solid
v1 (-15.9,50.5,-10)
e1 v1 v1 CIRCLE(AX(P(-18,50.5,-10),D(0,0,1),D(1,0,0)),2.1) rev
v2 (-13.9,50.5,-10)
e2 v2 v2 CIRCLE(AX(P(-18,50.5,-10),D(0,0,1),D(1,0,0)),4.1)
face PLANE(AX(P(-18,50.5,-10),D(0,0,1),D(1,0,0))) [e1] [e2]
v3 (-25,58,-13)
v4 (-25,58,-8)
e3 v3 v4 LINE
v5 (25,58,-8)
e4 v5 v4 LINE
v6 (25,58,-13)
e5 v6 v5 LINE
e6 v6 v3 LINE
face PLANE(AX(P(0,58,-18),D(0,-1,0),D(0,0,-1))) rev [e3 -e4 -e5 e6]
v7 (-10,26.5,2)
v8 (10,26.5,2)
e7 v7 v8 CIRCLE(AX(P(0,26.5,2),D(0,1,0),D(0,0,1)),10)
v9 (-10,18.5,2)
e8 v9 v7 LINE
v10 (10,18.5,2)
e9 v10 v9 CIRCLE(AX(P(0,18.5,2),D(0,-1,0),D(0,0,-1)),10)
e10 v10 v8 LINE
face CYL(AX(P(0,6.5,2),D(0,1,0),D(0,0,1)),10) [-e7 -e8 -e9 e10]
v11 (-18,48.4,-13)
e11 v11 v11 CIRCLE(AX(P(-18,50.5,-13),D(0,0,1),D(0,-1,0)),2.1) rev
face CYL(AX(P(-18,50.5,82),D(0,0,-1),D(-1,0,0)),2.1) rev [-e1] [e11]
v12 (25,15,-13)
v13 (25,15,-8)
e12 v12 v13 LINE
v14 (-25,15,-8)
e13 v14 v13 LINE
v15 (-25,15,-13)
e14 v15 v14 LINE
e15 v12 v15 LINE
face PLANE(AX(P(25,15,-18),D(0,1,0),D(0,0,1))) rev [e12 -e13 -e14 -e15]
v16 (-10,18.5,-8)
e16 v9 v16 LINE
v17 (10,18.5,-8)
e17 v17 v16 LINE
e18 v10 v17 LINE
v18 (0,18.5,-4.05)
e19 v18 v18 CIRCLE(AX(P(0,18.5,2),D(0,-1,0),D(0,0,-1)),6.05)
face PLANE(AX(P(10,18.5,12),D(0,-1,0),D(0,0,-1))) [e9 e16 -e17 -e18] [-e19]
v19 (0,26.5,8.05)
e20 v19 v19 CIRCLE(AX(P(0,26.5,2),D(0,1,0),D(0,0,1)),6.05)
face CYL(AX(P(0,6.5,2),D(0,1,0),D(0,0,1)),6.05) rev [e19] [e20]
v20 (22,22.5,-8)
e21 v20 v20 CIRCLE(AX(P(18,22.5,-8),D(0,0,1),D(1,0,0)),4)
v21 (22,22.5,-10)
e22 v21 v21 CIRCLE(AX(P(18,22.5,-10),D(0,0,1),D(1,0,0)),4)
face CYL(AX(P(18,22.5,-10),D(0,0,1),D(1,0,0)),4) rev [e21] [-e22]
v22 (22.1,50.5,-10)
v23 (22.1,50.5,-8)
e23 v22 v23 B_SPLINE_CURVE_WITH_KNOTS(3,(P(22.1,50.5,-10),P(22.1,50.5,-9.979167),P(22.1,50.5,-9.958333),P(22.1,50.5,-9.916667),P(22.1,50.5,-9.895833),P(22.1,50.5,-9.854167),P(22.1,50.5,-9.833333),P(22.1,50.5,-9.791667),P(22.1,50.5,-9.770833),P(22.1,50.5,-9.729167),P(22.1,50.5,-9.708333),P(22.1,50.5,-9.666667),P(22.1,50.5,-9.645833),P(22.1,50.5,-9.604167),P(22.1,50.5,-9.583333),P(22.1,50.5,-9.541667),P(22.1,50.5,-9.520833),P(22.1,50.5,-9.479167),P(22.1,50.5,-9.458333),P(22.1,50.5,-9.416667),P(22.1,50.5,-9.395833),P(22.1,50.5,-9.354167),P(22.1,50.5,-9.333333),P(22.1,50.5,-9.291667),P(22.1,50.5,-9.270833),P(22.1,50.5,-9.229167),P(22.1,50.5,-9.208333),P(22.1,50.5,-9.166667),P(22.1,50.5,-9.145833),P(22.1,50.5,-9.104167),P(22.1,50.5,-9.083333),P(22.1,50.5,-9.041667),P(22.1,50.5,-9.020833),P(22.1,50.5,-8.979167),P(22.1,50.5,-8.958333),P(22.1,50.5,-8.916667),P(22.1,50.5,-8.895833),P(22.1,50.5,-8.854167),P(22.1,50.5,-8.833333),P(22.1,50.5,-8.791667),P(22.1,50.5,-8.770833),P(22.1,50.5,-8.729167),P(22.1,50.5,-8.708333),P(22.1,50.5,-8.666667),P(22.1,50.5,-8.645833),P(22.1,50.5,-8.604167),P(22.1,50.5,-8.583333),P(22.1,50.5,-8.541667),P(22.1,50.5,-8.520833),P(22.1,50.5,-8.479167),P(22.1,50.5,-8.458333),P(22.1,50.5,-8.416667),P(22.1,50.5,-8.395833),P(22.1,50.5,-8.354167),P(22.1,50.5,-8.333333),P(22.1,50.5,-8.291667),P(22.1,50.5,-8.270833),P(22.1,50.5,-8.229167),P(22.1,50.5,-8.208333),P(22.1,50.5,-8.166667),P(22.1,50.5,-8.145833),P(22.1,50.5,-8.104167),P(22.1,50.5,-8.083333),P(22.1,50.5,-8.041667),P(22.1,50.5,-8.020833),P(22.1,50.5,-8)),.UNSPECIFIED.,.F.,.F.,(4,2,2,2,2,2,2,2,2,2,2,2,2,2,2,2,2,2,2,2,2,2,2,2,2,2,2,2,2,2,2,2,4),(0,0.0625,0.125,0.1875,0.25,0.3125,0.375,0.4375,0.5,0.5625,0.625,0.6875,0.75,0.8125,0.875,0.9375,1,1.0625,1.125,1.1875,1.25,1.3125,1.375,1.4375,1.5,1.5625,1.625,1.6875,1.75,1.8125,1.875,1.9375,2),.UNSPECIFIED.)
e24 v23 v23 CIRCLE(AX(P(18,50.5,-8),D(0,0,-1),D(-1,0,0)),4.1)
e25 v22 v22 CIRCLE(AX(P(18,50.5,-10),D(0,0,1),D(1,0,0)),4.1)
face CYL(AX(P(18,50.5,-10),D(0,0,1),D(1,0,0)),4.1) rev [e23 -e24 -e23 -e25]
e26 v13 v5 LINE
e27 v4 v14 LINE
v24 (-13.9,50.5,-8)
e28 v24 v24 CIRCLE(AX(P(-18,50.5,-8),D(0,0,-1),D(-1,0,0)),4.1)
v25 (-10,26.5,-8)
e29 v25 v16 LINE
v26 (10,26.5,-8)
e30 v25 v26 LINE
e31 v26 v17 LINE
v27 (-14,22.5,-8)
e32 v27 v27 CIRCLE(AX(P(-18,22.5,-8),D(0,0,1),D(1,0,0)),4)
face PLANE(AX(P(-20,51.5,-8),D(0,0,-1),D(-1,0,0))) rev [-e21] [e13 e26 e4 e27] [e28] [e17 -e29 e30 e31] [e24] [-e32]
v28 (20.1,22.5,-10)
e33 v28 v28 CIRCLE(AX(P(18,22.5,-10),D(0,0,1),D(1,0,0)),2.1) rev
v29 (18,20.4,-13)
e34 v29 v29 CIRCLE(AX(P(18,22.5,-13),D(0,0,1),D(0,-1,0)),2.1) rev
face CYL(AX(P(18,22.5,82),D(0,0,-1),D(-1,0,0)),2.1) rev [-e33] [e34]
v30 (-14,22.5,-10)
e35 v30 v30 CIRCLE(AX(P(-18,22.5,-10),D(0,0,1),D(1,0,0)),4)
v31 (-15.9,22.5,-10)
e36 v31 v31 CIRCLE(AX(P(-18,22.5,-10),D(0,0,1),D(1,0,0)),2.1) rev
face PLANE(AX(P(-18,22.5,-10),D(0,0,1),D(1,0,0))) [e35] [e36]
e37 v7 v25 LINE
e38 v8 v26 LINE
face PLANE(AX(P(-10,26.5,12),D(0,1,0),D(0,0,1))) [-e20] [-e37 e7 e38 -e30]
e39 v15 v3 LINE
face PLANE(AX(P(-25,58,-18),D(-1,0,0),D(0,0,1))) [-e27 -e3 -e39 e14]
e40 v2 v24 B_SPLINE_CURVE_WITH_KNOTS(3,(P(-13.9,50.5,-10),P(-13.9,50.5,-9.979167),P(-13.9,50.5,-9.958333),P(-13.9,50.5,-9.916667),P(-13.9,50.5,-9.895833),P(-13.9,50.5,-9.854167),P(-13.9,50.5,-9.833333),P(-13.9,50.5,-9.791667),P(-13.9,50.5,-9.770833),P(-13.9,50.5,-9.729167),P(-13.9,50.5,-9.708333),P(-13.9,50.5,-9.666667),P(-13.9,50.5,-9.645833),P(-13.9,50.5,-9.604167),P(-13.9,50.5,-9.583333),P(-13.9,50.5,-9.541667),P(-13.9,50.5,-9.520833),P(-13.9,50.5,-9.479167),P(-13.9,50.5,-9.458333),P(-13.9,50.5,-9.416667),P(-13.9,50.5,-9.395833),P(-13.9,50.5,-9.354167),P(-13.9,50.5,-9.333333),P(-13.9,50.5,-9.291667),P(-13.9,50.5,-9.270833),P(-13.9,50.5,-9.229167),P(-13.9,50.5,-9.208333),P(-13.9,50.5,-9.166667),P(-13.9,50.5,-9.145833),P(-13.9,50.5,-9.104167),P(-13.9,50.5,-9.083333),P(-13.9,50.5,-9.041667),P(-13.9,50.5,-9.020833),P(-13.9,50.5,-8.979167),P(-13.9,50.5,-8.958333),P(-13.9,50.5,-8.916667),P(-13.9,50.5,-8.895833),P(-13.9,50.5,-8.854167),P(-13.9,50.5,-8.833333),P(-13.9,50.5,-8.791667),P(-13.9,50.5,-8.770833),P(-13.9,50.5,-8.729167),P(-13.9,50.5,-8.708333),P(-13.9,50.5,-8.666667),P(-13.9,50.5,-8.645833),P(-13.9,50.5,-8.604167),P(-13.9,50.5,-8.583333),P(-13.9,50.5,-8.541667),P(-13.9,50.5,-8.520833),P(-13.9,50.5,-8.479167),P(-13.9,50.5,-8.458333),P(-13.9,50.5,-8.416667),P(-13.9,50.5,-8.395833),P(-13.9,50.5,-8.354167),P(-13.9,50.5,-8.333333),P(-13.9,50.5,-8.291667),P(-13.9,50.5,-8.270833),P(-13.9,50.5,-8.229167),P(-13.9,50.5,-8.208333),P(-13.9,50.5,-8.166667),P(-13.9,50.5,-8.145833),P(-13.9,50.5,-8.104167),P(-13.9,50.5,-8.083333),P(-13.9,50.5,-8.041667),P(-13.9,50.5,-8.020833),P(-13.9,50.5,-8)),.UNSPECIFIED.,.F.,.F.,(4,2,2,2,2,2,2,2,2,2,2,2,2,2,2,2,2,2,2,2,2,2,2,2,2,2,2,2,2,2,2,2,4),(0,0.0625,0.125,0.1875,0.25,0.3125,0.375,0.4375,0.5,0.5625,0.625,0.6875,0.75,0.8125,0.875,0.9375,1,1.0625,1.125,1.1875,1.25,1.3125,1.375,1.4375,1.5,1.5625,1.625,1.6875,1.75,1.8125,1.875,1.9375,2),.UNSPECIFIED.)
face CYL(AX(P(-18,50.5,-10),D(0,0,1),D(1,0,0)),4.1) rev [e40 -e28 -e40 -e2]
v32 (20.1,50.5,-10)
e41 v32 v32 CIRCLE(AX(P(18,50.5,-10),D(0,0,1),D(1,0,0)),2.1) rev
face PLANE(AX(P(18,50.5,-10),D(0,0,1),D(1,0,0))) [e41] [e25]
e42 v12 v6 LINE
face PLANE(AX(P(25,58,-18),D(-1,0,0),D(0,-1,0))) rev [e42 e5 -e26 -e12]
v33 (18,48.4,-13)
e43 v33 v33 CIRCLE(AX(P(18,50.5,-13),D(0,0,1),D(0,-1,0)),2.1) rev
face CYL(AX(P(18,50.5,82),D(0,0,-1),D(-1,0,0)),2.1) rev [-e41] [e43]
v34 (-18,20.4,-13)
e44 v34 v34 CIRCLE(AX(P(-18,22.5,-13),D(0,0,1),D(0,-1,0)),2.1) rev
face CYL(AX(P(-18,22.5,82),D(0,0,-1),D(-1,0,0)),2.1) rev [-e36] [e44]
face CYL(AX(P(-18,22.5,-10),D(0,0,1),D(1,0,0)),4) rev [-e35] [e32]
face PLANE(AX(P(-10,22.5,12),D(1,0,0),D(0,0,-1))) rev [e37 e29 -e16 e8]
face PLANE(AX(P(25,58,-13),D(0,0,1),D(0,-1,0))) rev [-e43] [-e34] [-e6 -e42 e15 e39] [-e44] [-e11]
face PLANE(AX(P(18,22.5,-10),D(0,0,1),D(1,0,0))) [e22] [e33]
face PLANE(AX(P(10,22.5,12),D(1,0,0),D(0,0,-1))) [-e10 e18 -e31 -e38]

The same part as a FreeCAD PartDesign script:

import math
import FreeCAD as App
import Part
import Sketcher

V = App.Vector


def add_polygon(sketch, points):
    """Adds a closed chain of lines whose ends are joined by coincident constraints."""
    first, n = sketch.GeometryCount, len(points)
    for a, b in zip(points, points[1:] + points[:1]):
        sketch.addGeometry(Part.LineSegment(App.Vector(*a, 0), App.Vector(*b, 0)), False)
    for i in range(n):
        sketch.addConstraint(Sketcher.Constraint("Coincident", first + i, 2, first + (i + 1) % n, 1))

doc = App.newDocument("Part")
body = doc.addObject("PartDesign::Body", "Body")

sketch1 = doc.addObject("Sketcher::SketchObject", "Sketch")
body.addObject(sketch1)
sketch1.AttachmentSupport = (doc.XY_Plane, [""])
sketch1.MapMode = "FlatFace"
add_polygon(sketch1, [(25, 21.5), (-25, 21.5), (-25, -21.5), (25, -21.5)])
sketch1.addGeometry(Part.Circle(V(18, -14, 0), V(0, 0, 1), 2), False)
sketch1.addGeometry(Part.Circle(V(-18, -14, 0), V(0, 0, 1), 2), False)
sketch1.addGeometry(Part.Circle(V(18, 14, 0), V(0, 0, 1), 2), False)
sketch1.addGeometry(Part.Circle(V(-18, 14, 0), V(0, 0, 1), 2), False)
sketch1.addConstraint([
    Sketcher.Constraint("Horizontal", 0),
    Sketcher.Constraint("Vertical", 1),
    Sketcher.Constraint("Horizontal", 2),
    Sketcher.Constraint("Vertical", 3),
    Sketcher.Constraint("Equal", 4, 5),
    Sketcher.Constraint("Equal", 5, 6),
    Sketcher.Constraint("Equal", 6, 7),
    Sketcher.Constraint("Symmetric", 5, 3, 6, 3, -1, 1),
    Sketcher.Constraint("Symmetric", 4, 3, 7, 3, -1, 1),
    Sketcher.Constraint("Symmetric", 0, 2, 2, 2, -1, 1),
    Sketcher.Constraint("Symmetric", 4, 3, 5, 3, -2),
    Sketcher.Constraint("Diameter", 4, 4.0),
    Sketcher.Constraint("DistanceX", 0, 2, 0, 1, 50.0),
    Sketcher.Constraint("DistanceY", 1, 2, 1, 1, 43.0),
    Sketcher.Constraint("DistanceX", -1, 1, 4, 3, 18.0),
    Sketcher.Constraint("DistanceY", 4, 3, -1, 1, 14.0),
])
pad1 = doc.addObject("PartDesign::Pad", "Pad")
body.addObject(pad1)
pad1.Profile = sketch1
pad1.Length = 5

sketch2 = doc.addObject("Sketcher::SketchObject", "Sketch001")
body.addObject(sketch2)
sketch2.AttachmentSupport = (doc.XY_Plane, [""])
sketch2.MapMode = "FlatFace"
sketch2.AttachmentOffset = App.Placement(V(0, 0, 5), App.Rotation())
add_polygon(sketch2, [(20, 26), (-20, 26), (-20, 22), (20, 22)])
sketch2.addConstraint([
    Sketcher.Constraint("Horizontal", 0),
    Sketcher.Constraint("Vertical", 1),
    Sketcher.Constraint("Horizontal", 2),
    Sketcher.Constraint("Vertical", 3),
    Sketcher.Constraint("DistanceX", 0, 2, 0, 1, 40.0),
    Sketcher.Constraint("DistanceY", 1, 2, 1, 1, 5.0),
    Sketcher.Constraint("DistanceX", 0, 2, -1, 1, 20.0),
    Sketcher.Constraint("DistanceY", -1, 1, 0, 2, 26.5),
])
pad2 = doc.addObject("PartDesign::Pad", "Pad001")
body.addObject(pad2)
pad2.Profile = sketch2
pad2.Length = 18
pad2.Reversed = True

sketch3 = doc.addObject("Sketcher::SketchObject", "Sketch002")
body.addObject(sketch3)
sketch3.AttachmentSupport = (doc.XZ_Plane, [""])
sketch3.MapMode = "FlatFace"
sketch3.AttachmentOffset = App.Placement(V(0, 0, -26.5), App.Rotation())
add_polygon(sketch3, [(-20, -13), (-20, -8), (20, -8), (20, -13)])
sketch3.addConstraint([
    Sketcher.Constraint("Vertical", 0),
    Sketcher.Constraint("Horizontal", 1),
    Sketcher.Constraint("Vertical", 2),
    Sketcher.Constraint("Horizontal", 3),
    Sketcher.Constraint("DistanceX", 1, 1, 1, 2, 40.0),
    Sketcher.Constraint("DistanceY", 0, 1, 0, 2, 5.0),
    Sketcher.Constraint("DistanceX", 0, 2, -1, 1, 20.0),
    Sketcher.Constraint("DistanceY", 0, 2, -1, 1, 8.0),
])
pad3 = doc.addObject("PartDesign::Pad", "Pad002")
body.addObject(pad3)
pad3.Profile = sketch3
pad3.Length = 25
pad3.Reversed = True

sketch4 = doc.addObject("Sketcher::SketchObject", "Sketch003")
body.addObject(sketch4)
sketch4.AttachmentSupport = (doc.XY_Plane, [""])
sketch4.MapMode = "FlatFace"
sketch4.AttachmentOffset = App.Placement(V(0, 0, -8), App.Rotation())
add_polygon(sketch4, [(-20, 52), (-20, 46), (20, 46), (20, 52)])
sketch4.addConstraint([
    Sketcher.Constraint("Vertical", 0),
    Sketcher.Constraint("Horizontal", 1),
    Sketcher.Constraint("Vertical", 2),
    Sketcher.Constraint("Horizontal", 3),
    Sketcher.Constraint("DistanceX", 1, 1, 1, 2, 40.0),
    Sketcher.Constraint("DistanceY", 0, 2, 0, 1, 5.0),
    Sketcher.Constraint("DistanceX", 0, 2, -1, 1, 20.0),
    Sketcher.Constraint("DistanceY", -1, 1, 0, 2, 46.5),
])
pad4 = doc.addObject("PartDesign::Pad", "Pad003")
body.addObject(pad4)
pad4.Profile = sketch4
pad4.Length = 27

sketch5 = doc.addObject("Sketcher::SketchObject", "Sketch004")
body.addObject(sketch5)
sketch5.AttachmentSupport = (doc.XY_Plane, [""])
sketch5.MapMode = "FlatFace"
sketch5.addGeometry(Part.Circle(V(0, 0, 0), V(0, 0, 1), 10), False)
sketch5.addConstraint([
    Sketcher.Constraint("Coincident", 0, 3, -1, 1),
    Sketcher.Constraint("Diameter", 0, 20.0),
])
pocket1 = doc.addObject("PartDesign::Pocket", "Pocket")
body.addObject(pocket1)
pocket1.Profile = sketch5
pocket1.Length = 50
pocket1.Reversed = True

sketch6 = doc.addObject("Sketcher::SketchObject", "Sketch005")
body.addObject(sketch6)
sketch6.AttachmentSupport = (doc.XZ_Plane, [""])
sketch6.MapMode = "FlatFace"
sketch6.AttachmentOffset = App.Placement(V(0, 0, -51.5), App.Rotation())
add_polygon(sketch6, [(-28, 14), (-28, 19), (-20, 19), (-20, 14)])
add_polygon(sketch6, [(20, 14), (20, 19), (28, 19), (28, 14)])
sketch6.addConstraint([
    Sketcher.Constraint("Vertical", 0),
    Sketcher.Constraint("Horizontal", 1),
    Sketcher.Constraint("Vertical", 2),
    Sketcher.Constraint("Horizontal", 3),
    Sketcher.Constraint("Vertical", 4),
    Sketcher.Constraint("Horizontal", 5),
    Sketcher.Constraint("Vertical", 6),
    Sketcher.Constraint("Horizontal", 7),
    Sketcher.Constraint("Symmetric", 1, 2, 4, 2, -2),
    Sketcher.Constraint("Symmetric", 3, 2, 6, 2, -2),
    Sketcher.Constraint("DistanceX", 1, 1, 1, 2, 8.0),
    Sketcher.Constraint("DistanceY", 0, 1, 0, 2, 5.0),
    Sketcher.Constraint("DistanceX", 0, 2, -1, 1, 28.0),
    Sketcher.Constraint("DistanceY", -1, 1, 0, 2, 19.0),
])
pad5 = doc.addObject("PartDesign::Pad", "Pad004")
body.addObject(pad5)
pad5.Profile = sketch6
pad5.Length = 20

sketch7 = doc.addObject("Sketcher::SketchObject", "Sketch006")
body.addObject(sketch7)
sketch7.AttachmentSupport = (doc.XY_Plane, [""])
sketch7.MapMode = "FlatFace"
sketch7.AttachmentOffset = App.Placement(V(0, 0, 14), App.Rotation())
sketch7.addGeometry([
    Part.LineSegment(V(-28, 46, 0), V(-28, 47, 0)),
    Part.LineSegment(V(-28, 47, 0), V(-27.95, 47, 0)),
    Part.ArcOfCircle(Part.Circle(V(-25.5, 46.5, 0), V(0, 0, 1), 2.5), math.radians(-168), math.radians(168)),
    Part.LineSegment(V(-27.95, 46, 0), V(-28, 46, 0)),
    Part.LineSegment(V(-27.95, 36, 0), V(-28, 36, 0)),
    Part.LineSegment(V(-28, 36, 0), V(-28, 37, 0)),
    Part.LineSegment(V(-28, 37, 0), V(-27.95, 37, 0)),
    Part.ArcOfCircle(Part.Circle(V(-25.5, 36.5, 0), V(0, 0, 1), 2.5), math.radians(-168), math.radians(168)),
], False)
sketch7.addConstraint([
    Sketcher.Constraint("Coincident", 0, 2, 1, 1),
    Sketcher.Constraint("Coincident", 1, 2, 2, 2),
    Sketcher.Constraint("Coincident", 2, 1, 3, 1),
    Sketcher.Constraint("Coincident", 3, 2, 0, 1),
    Sketcher.Constraint("Coincident", 4, 2, 5, 1),
    Sketcher.Constraint("Coincident", 5, 2, 6, 1),
    Sketcher.Constraint("Coincident", 6, 2, 7, 2),
    Sketcher.Constraint("Coincident", 7, 1, 4, 1),
    Sketcher.Constraint("Vertical", 0),
    Sketcher.Constraint("Horizontal", 1),
    Sketcher.Constraint("Horizontal", 3),
    Sketcher.Constraint("Horizontal", 4),
    Sketcher.Constraint("Vertical", 5),
    Sketcher.Constraint("Horizontal", 6),
    Sketcher.Constraint("Equal", 2, 7),
    Sketcher.Constraint("Vertical", 2, 3, 7, 3),
    Sketcher.Constraint("Vertical", 1, 2, 2, 1),
    Sketcher.Constraint("Vertical", 3, 2, 4, 2),
    Sketcher.Constraint("Vertical", 2, 1, 6, 2),
    Sketcher.Constraint("Vertical", 6, 2, 7, 1),
    Sketcher.Constraint("Radius", 2, 2.5),
    Sketcher.Constraint("DistanceY", 0, 1, 0, 2, 1.0),
    Sketcher.Constraint("DistanceX", 0, 2, -1, 1, 28.0),
    Sketcher.Constraint("DistanceY", -1, 1, 0, 2, 47.0),
    Sketcher.Constraint("DistanceY", -1, 1, 4, 2, 36.0),
    Sketcher.Constraint("DistanceX", 2, 3, -1, 1, 25.5),
])
pocket2 = doc.addObject("PartDesign::Pocket", "Pocket001")
body.addObject(pocket2)
pocket2.Profile = sketch7
pocket2.Length = 20
pocket2.Reversed = True

sketch8 = doc.addObject("Sketcher::SketchObject", "Sketch007")
body.addObject(sketch8)
sketch8.AttachmentSupport = (doc.XY_Plane, [""])
sketch8.MapMode = "FlatFace"
sketch8.AttachmentOffset = App.Placement(V(0, 0, 14), App.Rotation())
sketch8.addGeometry([
    Part.ArcOfCircle(Part.Circle(V(25.5, 46.5, 0), V(0, 0, 1), 2.5), math.radians(12), math.radians(348)),
    Part.LineSegment(V(27.95, 47, 0), V(28, 47, 0)),
    Part.LineSegment(V(28, 47, 0), V(28, 46, 0)),
    Part.LineSegment(V(28, 46, 0), V(27.95, 46, 0)),
    Part.LineSegment(V(27.95, 37, 0), V(28, 37, 0)),
    Part.LineSegment(V(28, 37, 0), V(28, 36, 0)),
    Part.LineSegment(V(28, 36, 0), V(27.95, 36, 0)),
    Part.ArcOfCircle(Part.Circle(V(25.5, 36.5, 0), V(0, 0, 1), 2.5), math.radians(12), math.radians(348)),
], False)
sketch8.addConstraint([
    Sketcher.Constraint("Coincident", 0, 1, 1, 1),
    Sketcher.Constraint("Coincident", 1, 2, 2, 1),
    Sketcher.Constraint("Coincident", 2, 2, 3, 1),
    Sketcher.Constraint("Coincident", 3, 2, 0, 2),
    Sketcher.Constraint("Coincident", 4, 2, 5, 1),
    Sketcher.Constraint("Coincident", 5, 2, 6, 1),
    Sketcher.Constraint("Coincident", 6, 2, 7, 2),
    Sketcher.Constraint("Coincident", 7, 1, 4, 1),
    Sketcher.Constraint("Horizontal", 1),
    Sketcher.Constraint("Vertical", 2),
    Sketcher.Constraint("Horizontal", 3),
    Sketcher.Constraint("Horizontal", 4),
    Sketcher.Constraint("Vertical", 5),
    Sketcher.Constraint("Horizontal", 6),
    Sketcher.Constraint("Equal", 0, 7),
    Sketcher.Constraint("Vertical", 0, 3, 7, 3),
    Sketcher.Constraint("Vertical", 0, 1, 3, 2),
    Sketcher.Constraint("Vertical", 2, 2, 4, 2),
    Sketcher.Constraint("Vertical", 3, 2, 6, 2),
    Sketcher.Constraint("Vertical", 6, 2, 7, 1),
    Sketcher.Constraint("Radius", 0, 2.5),
    Sketcher.Constraint("DistanceY", 2, 2, 2, 1, 1.0),
    Sketcher.Constraint("DistanceY", -1, 1, 0, 1, 47.0),
    Sketcher.Constraint("DistanceX", -1, 1, 1, 2, 28.0),
    Sketcher.Constraint("DistanceY", -1, 1, 4, 2, 37.0),
    Sketcher.Constraint("DistanceX", -1, 1, 0, 3, 25.5),
])
pocket3 = doc.addObject("PartDesign::Pocket", "Pocket002")
body.addObject(pocket3)
pocket3.Profile = sketch8
pocket3.Length = 20
pocket3.Reversed = True

sketch9 = doc.addObject("Sketcher::SketchObject", "Sketch008")
body.addObject(sketch9)
sketch9.AttachmentSupport = (doc.XZ_Plane, [""])
sketch9.MapMode = "FlatFace"
sketch9.AttachmentOffset = App.Placement(V(0, 0, -51.5), App.Rotation())
add_polygon(sketch9, [(-20, 19), (-20, 23), (20, 23), (20, 19)])
sketch9.addConstraint([
    Sketcher.Constraint("Vertical", 0),
    Sketcher.Constraint("Horizontal", 1),
    Sketcher.Constraint("Vertical", 2),
    Sketcher.Constraint("Horizontal", 3),
    Sketcher.Constraint("DistanceX", 1, 1, 1, 2, 40.0),
    Sketcher.Constraint("DistanceY", 0, 1, 0, 2, 4.0),
    Sketcher.Constraint("DistanceX", 0, 2, -1, 1, 20.0),
    Sketcher.Constraint("DistanceY", -1, 1, 0, 2, 23.0),
])
pad6 = doc.addObject("PartDesign::Pad", "Pad005")
body.addObject(pad6)
pad6.Profile = sketch9
pad6.Length = 5

sketch10 = doc.addObject("Sketcher::SketchObject", "Sketch009")
body.addObject(sketch10)
sketch10.AttachmentSupport = (doc.XZ_Plane, [""])
sketch10.MapMode = "FlatFace"
sketch10.AttachmentOffset = App.Placement(V(0, 0, -51.5), App.Rotation())
add_polygon(sketch10, [(-20, 19), (-20, 23), (20, 23), (20, 19)])
sketch10.addConstraint([
    Sketcher.Constraint("Vertical", 0),
    Sketcher.Constraint("Horizontal", 1),
    Sketcher.Constraint("Vertical", 2),
    Sketcher.Constraint("Horizontal", 3),
    Sketcher.Constraint("DistanceX", 1, 1, 1, 2, 40.0),
    Sketcher.Constraint("DistanceY", 0, 1, 0, 2, 4.0),
    Sketcher.Constraint("DistanceX", 0, 2, -1, 1, 20.0),
    Sketcher.Constraint("DistanceY", -1, 1, 0, 2, 23.0),
])
pad7 = doc.addObject("PartDesign::Pad", "Pad006")
body.addObject(pad7)
pad7.Profile = sketch10
pad7.Length = 12
pad7.Reversed = True

sketch11 = doc.addObject("Sketcher::SketchObject", "Sketch010")
body.addObject(sketch11)
sketch11.AttachmentSupport = (doc.XY_Plane, [""])
sketch11.MapMode = "FlatFace"
sketch11.AttachmentOffset = App.Placement(V(0, 0, 19), App.Rotation())
sketch11.addGeometry([
    Part.Circle(V(-6, 59.5, 0), V(0, 0, 1), 1.5),
    Part.Circle(V(-13, 59.5, 0), V(0, 0, 1), 1.5),
], False)
sketch11.addConstraint([
    Sketcher.Constraint("Equal", 0, 1),
    Sketcher.Constraint("Horizontal", 0, 3, 1, 3),
    Sketcher.Constraint("Diameter", 0, 3.0),
    Sketcher.Constraint("DistanceX", 0, 3, -1, 1, 6.0),
    Sketcher.Constraint("DistanceX", 1, 3, -1, 1, 13.0),
    Sketcher.Constraint("DistanceY", -1, 1, 0, 3, 59.5),
])
pocket4 = doc.addObject("PartDesign::Pocket", "Pocket003")
body.addObject(pocket4)
pocket4.Profile = sketch11
pocket4.Length = 10
pocket4.Reversed = True

sketch12 = doc.addObject("Sketcher::SketchObject", "Sketch011")
body.addObject(sketch12)
sketch12.AttachmentSupport = (doc.XY_Plane, [""])
sketch12.MapMode = "FlatFace"
sketch12.AttachmentOffset = App.Placement(V(0, 0, 23), App.Rotation())
sketch12.addGeometry([
    Part.ArcOfCircle(Part.Circle(V(8, 51, 0), V(0, 0, 1), 12), math.radians(0), math.radians(90)),
    Part.LineSegment(V(20, 52, 0), V(20, 64, 0)),
    Part.LineSegment(V(20, 64, 0), V(8, 64, 0)),
], False)
sketch12.addConstraint([
    Sketcher.Constraint("Tangent", 0, 1, 1, 1),
    Sketcher.Constraint("Coincident", 1, 2, 2, 1),
    Sketcher.Constraint("Tangent", 2, 2, 0, 2),
    Sketcher.Constraint("Vertical", 1),
    Sketcher.Constraint("Horizontal", 2),
    Sketcher.Constraint("Radius", 0, 12.0),
    Sketcher.Constraint("DistanceX", -1, 1, 0, 3, 8.0),
    Sketcher.Constraint("DistanceY", -1, 1, 0, 3, 51.5),
])
pocket5 = doc.addObject("PartDesign::Pocket", "Pocket004")
body.addObject(pocket5)
pocket5.Profile = sketch12
pocket5.Length = 10

sketch13 = doc.addObject("Sketcher::SketchObject", "Sketch012")
body.addObject(sketch13)
sketch13.AttachmentSupport = (doc.XY_Plane, [""])
sketch13.MapMode = "FlatFace"
sketch13.AttachmentOffset = App.Placement(V(0, 0, 23), App.Rotation())
add_polygon(sketch13, [(-20, 64), (-20, 52), (20, 52), (20, 64)])
sketch13.addConstraint([
    Sketcher.Constraint("Vertical", 0),
    Sketcher.Constraint("Horizontal", 1),
    Sketcher.Constraint("Vertical", 2),
    Sketcher.Constraint("Horizontal", 3),
    Sketcher.Constraint("DistanceY", 0, 2, 0, 1, 12.0),
    Sketcher.Constraint("DistanceX", 0, 2, -1, 1, 20.0),
    Sketcher.Constraint("DistanceY", -1, 1, 0, 2, 51.5),
    Sketcher.Constraint("DistanceX", 1, 1, 1, 2, 39.912411),
])
pocket6 = doc.addObject("PartDesign::Pocket", "Pocket005")
body.addObject(pocket6)
pocket6.Profile = sketch13
pocket6.Length = 10

sketch14 = doc.addObject("Sketcher::SketchObject", "Sketch013")
body.addObject(sketch14)
sketch14.AttachmentSupport = (doc.XY_Plane, [""])
sketch14.MapMode = "FlatFace"
sketch14.AttachmentOffset = App.Placement(V(0, 0, 23), App.Rotation())
add_polygon(sketch14, [(19.4, 53.1), (19.4, 51.5), (21.2, 51.5), (21.2, 53.1)])
sketch14.addConstraint([
    Sketcher.Constraint("Vertical", 0),
    Sketcher.Constraint("Horizontal", 1),
    Sketcher.Constraint("Vertical", 2),
    Sketcher.Constraint("Horizontal", 3),
    Sketcher.Constraint("DistanceY", -1, 1, 0, 2, 51.5),
    Sketcher.Constraint("DistanceX", 1, 1, 1, 2, 1.771441),
    Sketcher.Constraint("DistanceY", 0, 2, 0, 1, 1.605869),
    Sketcher.Constraint("DistanceX", -1, 1, 0, 2, 19.383746),
])
pocket7 = doc.addObject("PartDesign::Pocket", "Pocket006")
body.addObject(pocket7)
pocket7.Profile = sketch14
pocket7.Length = 10

sketch15 = doc.addObject("Sketcher::SketchObject", "Sketch014")
body.addObject(sketch15)
sketch15.AttachmentSupport = (doc.XZ_Plane, [""])
sketch15.MapMode = "FlatFace"
sketch15.AttachmentOffset = App.Placement(V(0, 0, -51.5), App.Rotation())
add_polygon(sketch15, [(-20, 19), (-20, 23), (20, 23), (20, 19)])
sketch15.addConstraint([
    Sketcher.Constraint("Vertical", 0),
    Sketcher.Constraint("Horizontal", 1),
    Sketcher.Constraint("Vertical", 2),
    Sketcher.Constraint("Horizontal", 3),
    Sketcher.Constraint("DistanceX", 1, 1, 1, 2, 40.0),
    Sketcher.Constraint("DistanceY", 0, 1, 0, 2, 4.0),
    Sketcher.Constraint("DistanceX", 0, 2, -1, 1, 20.0),
    Sketcher.Constraint("DistanceY", -1, 1, 0, 2, 23.0),
])
pad8 = doc.addObject("PartDesign::Pad", "Pad007")
body.addObject(pad8)
pad8.Profile = sketch15
pad8.Length = 7
pad8.Reversed = True

sketch16 = doc.addObject("Sketcher::SketchObject", "Sketch015")
body.addObject(sketch16)
sketch16.AttachmentSupport = (doc.XY_Plane, [""])
sketch16.MapMode = "FlatFace"
sketch16.AttachmentOffset = App.Placement(V(0, 0, 23), App.Rotation())
sketch16.addGeometry([
    Part.Circle(V(-13, 54.5, 0), V(0, 0, 1), 1.5),
    Part.Circle(V(-6, 54.5, 0), V(0, 0, 1), 1.5),
], False)
sketch16.addConstraint([
    Sketcher.Constraint("Equal", 0, 1),
    Sketcher.Constraint("Horizontal", 0, 3, 1, 3),
    Sketcher.Constraint("Diameter", 0, 3.0),
    Sketcher.Constraint("DistanceX", 0, 3, -1, 1, 13.0),
    Sketcher.Constraint("DistanceX", 1, 3, -1, 1, 6.0),
    Sketcher.Constraint("DistanceY", -1, 1, 0, 3, 54.5),
])
pocket8 = doc.addObject("PartDesign::Pocket", "Pocket007")
body.addObject(pocket8)
pocket8.Profile = sketch16
pocket8.Length = 7

sketch17 = doc.addObject("Sketcher::SketchObject", "Sketch016")
body.addObject(sketch17)
sketch17.AttachmentSupport = (doc.XY_Plane, [""])
sketch17.MapMode = "FlatFace"
sketch17.AttachmentOffset = App.Placement(V(0, 0, 19), App.Rotation())
add_polygon(sketch17, [(20, 52), (20, 25), (28, 25), (28, 52)])
sketch17.addConstraint([
    Sketcher.Constraint("Vertical", 0),
    Sketcher.Constraint("Horizontal", 1),
    Sketcher.Constraint("Vertical", 2),
    Sketcher.Constraint("Horizontal", 3),
    Sketcher.Constraint("DistanceX", 1, 1, 1, 2, 8.0),
    Sketcher.Constraint("DistanceY", 0, 2, 0, 1, 26.5),
    Sketcher.Constraint("DistanceX", -1, 1, 0, 2, 20.0),
    Sketcher.Constraint("DistanceY", -1, 1, 0, 2, 25.0),
])
pad9 = doc.addObject("PartDesign::Pad", "Pad008")
body.addObject(pad9)
pad9.Profile = sketch17
pad9.Length = 5
pad9.Reversed = True

sketch18 = doc.addObject("Sketcher::SketchObject", "Sketch017")
body.addObject(sketch18)
sketch18.AttachmentSupport = (doc.XY_Plane, [""])
sketch18.MapMode = "FlatFace"
sketch18.AttachmentOffset = App.Placement(V(0, 0, 19), App.Rotation())
add_polygon(sketch18, [(-28, 52), (-28, 26), (-20, 26), (-20, 52)])
sketch18.addConstraint([
    Sketcher.Constraint("Vertical", 0),
    Sketcher.Constraint("Horizontal", 1),
    Sketcher.Constraint("Vertical", 2),
    Sketcher.Constraint("Horizontal", 3),
    Sketcher.Constraint("DistanceX", 1, 1, 1, 2, 8.0),
    Sketcher.Constraint("DistanceY", 0, 2, 0, 1, 25.0),
    Sketcher.Constraint("DistanceX", 0, 2, -1, 1, 28.0),
    Sketcher.Constraint("DistanceY", -1, 1, 0, 2, 26.5),
])
pad10 = doc.addObject("PartDesign::Pad", "Pad009")
body.addObject(pad10)
pad10.Profile = sketch18
pad10.Length = 5
pad10.Reversed = True

sketch19 = doc.addObject("Sketcher::SketchObject", "Sketch018")
body.addObject(sketch19)
sketch19.AttachmentSupport = (doc.XY_Plane, [""])
sketch19.MapMode = "FlatFace"
sketch19.AttachmentOffset = App.Placement(V(0, 0, 19), App.Rotation())
add_polygon(sketch19, [(20, 26.5), (20, 25), (28, 25), (28, 26.5)])
sketch19.addConstraint([
    Sketcher.Constraint("Vertical", 0),
    Sketcher.Constraint("Horizontal", 1),
    Sketcher.Constraint("Vertical", 2),
    Sketcher.Constraint("Horizontal", 3),
    Sketcher.Constraint("DistanceX", 1, 1, 1, 2, 8.0),
    Sketcher.Constraint("DistanceY", 0, 2, 0, 1, 1.5),
    Sketcher.Constraint("DistanceX", -1, 1, 0, 2, 20.0),
    Sketcher.Constraint("DistanceY", -1, 1, 0, 2, 25.0),
])
pocket9 = doc.addObject("PartDesign::Pocket", "Pocket008")
body.addObject(pocket9)
pocket9.Profile = sketch19
pocket9.Length = 5

sketch20 = doc.addObject("Sketcher::SketchObject", "Sketch019")
body.addObject(sketch20)
sketch20.AttachmentSupport = (doc.XY_Plane, [""])
sketch20.MapMode = "FlatFace"
sketch20.AttachmentOffset = App.Placement(V(0, 0, 19), App.Rotation())
sketch20.addGeometry([
    Part.Circle(V(25.5, 41.5, 0), V(0, 0, 1), 2.5),
    Part.Circle(V(25.5, 31.5, 0), V(0, 0, 1), 2.5),
], False)
sketch20.addConstraint([
    Sketcher.Constraint("Equal", 0, 1),
    Sketcher.Constraint("Vertical", 0, 3, 1, 3),
    Sketcher.Constraint("Diameter", 0, 5.04),
    Sketcher.Constraint("DistanceY", 1, 3, 0, 3, 10.0),
    Sketcher.Constraint("DistanceX", -1, 1, 0, 3, 25.5),
    Sketcher.Constraint("DistanceY", -1, 1, 0, 3, 41.5),
])
pocket10 = doc.addObject("PartDesign::Pocket", "Pocket009")
body.addObject(pocket10)
pocket10.Profile = sketch20
pocket10.Length = 5

sketch21 = doc.addObject("Sketcher::SketchObject", "Sketch020")
body.addObject(sketch21)
sketch21.AttachmentSupport = (doc.XY_Plane, [""])
sketch21.MapMode = "FlatFace"
sketch21.AttachmentOffset = App.Placement(V(0, 0, 19), App.Rotation())
sketch21.addGeometry([
    Part.Circle(V(-25.5, 41.5, 0), V(0, 0, 1), 2.5),
    Part.Circle(V(-25.5, 31.5, 0), V(0, 0, 1), 2.5),
], False)
sketch21.addConstraint([
    Sketcher.Constraint("Equal", 0, 1),
    Sketcher.Constraint("Vertical", 0, 3, 1, 3),
    Sketcher.Constraint("Diameter", 0, 5.04),
    Sketcher.Constraint("DistanceY", 1, 3, 0, 3, 10.0),
    Sketcher.Constraint("DistanceX", 0, 3, -1, 1, 25.5),
    Sketcher.Constraint("DistanceY", -1, 1, 0, 3, 41.5),
])
pocket11 = doc.addObject("PartDesign::Pocket", "Pocket010")
body.addObject(pocket11)
pocket11.Profile = sketch21
pocket11.Length = 5

sketch22 = doc.addObject("Sketcher::SketchObject", "Sketch021")
body.addObject(sketch22)
sketch22.AttachmentSupport = (doc.XY_Plane, [""])
sketch22.MapMode = "FlatFace"
sketch22.AttachmentOffset = App.Placement(V(0, 0, 19), App.Rotation())
sketch22.addGeometry([
    Part.LineSegment(V(20, 58, 0), V(20, 52, 0)),
    Part.ArcOfCircle(Part.Circle(V(13, 51, 0), V(0, 0, 1), 7), math.radians(0), math.radians(90)),
    Part.LineSegment(V(13, 58, 0), V(20, 58, 0)),
    Part.LineSegment(V(-20, 58, 0), V(-13, 58, 0)),
    Part.ArcOfCircle(Part.Circle(V(-13, 51, 0), V(0, 0, 1), 7), math.radians(90), math.radians(180)),
    Part.LineSegment(V(-20, 52, 0), V(-20, 58, 0)),
], False)
sketch22.addConstraint([
    Sketcher.Constraint("Tangent", 0, 2, 1, 1),
    Sketcher.Constraint("Tangent", 1, 2, 2, 1),
    Sketcher.Constraint("Coincident", 2, 2, 0, 1),
    Sketcher.Constraint("Tangent", 3, 2, 4, 1),
    Sketcher.Constraint("Tangent", 4, 2, 5, 1),
    Sketcher.Constraint("Coincident", 5, 2, 3, 1),
    Sketcher.Constraint("Vertical", 0),
    Sketcher.Constraint("Horizontal", 2),
    Sketcher.Constraint("Horizontal", 3),
    Sketcher.Constraint("Vertical", 5),
    Sketcher.Constraint("Equal", 1, 4),
    Sketcher.Constraint("Symmetric", 1, 3, 4, 3, -2),
    Sketcher.Constraint("Radius", 1, 7.0),
    Sketcher.Constraint("DistanceX", -1, 1, 1, 3, 13.0),
    Sketcher.Constraint("DistanceY", -1, 1, 1, 3, 51.5),
])
pocket12 = doc.addObject("PartDesign::Pocket", "Pocket011")
body.addObject(pocket12)
pocket12.Profile = sketch22
pocket12.Length = 5
pocket12.Reversed = True

sketch23 = doc.addObject("Sketcher::SketchObject", "Sketch022")
body.addObject(sketch23)
sketch23.AttachmentSupport = (doc.XY_Plane, [""])
sketch23.MapMode = "FlatFace"
sketch23.AttachmentOffset = App.Placement(V(0, 0, 5), App.Rotation())
sketch23.addGeometry([
    Part.Circle(V(18, 14, 0), V(0, 0, 1), 4),
    Part.Circle(V(-18, 14, 0), V(0, 0, 1), 4),
    Part.Circle(V(-18, -14, 0), V(0, 0, 1), 4),
    Part.Circle(V(18, -14, 0), V(0, 0, 1), 4),
], False)
sketch23.addConstraint([
    Sketcher.Constraint("Equal", 0, 1),
    Sketcher.Constraint("Equal", 1, 2),
    Sketcher.Constraint("Equal", 2, 3),
    Sketcher.Constraint("Symmetric", 0, 3, 2, 3, -1, 1),
    Sketcher.Constraint("Symmetric", 1, 3, 3, 3, -1, 1),
    Sketcher.Constraint("Symmetric", 0, 3, 1, 3, -2),
    Sketcher.Constraint("Diameter", 0, 8.0),
    Sketcher.Constraint("DistanceX", -1, 1, 0, 3, 18.0),
    Sketcher.Constraint("DistanceY", -1, 1, 0, 3, 14.0),
])
pocket13 = doc.addObject("PartDesign::Pocket", "Pocket012")
body.addObject(pocket13)
pocket13.Profile = sketch23
pocket13.Length = 3

sketch24 = doc.addObject("Sketcher::SketchObject", "Sketch023")
body.addObject(sketch24)
sketch24.AttachmentSupport = (doc.YZ_Plane, [""])
sketch24.MapMode = "FlatFace"
sketch24.AttachmentOffset = App.Placement(V(0, 0, -20), App.Rotation())
add_polygon(sketch24, [(58.5, 19), (46.5, 19), (46.5, 23), (58.5, 23)])
sketch24.addConstraint([
    Sketcher.Constraint("Horizontal", 0),
    Sketcher.Constraint("Vertical", 1),
    Sketcher.Constraint("Horizontal", 2),
    Sketcher.Constraint("Vertical", 3),
    Sketcher.Constraint("DistanceX", 0, 2, 0, 1, 12.0),
    Sketcher.Constraint("DistanceY", 1, 1, 1, 2, 4.0),
    Sketcher.Constraint("DistanceY", -1, 1, 0, 2, 19.0),
    Sketcher.Constraint("DistanceX", -1, 1, 0, 2, 46.5),
])
pocket14 = doc.addObject("PartDesign::Pocket", "Pocket013")
body.addObject(pocket14)
pocket14.Profile = sketch24
pocket14.Length = 100
pocket14.Reversed = True

sketch25 = doc.addObject("Sketcher::SketchObject", "Sketch024")
body.addObject(sketch25)
sketch25.AttachmentSupport = (doc.XY_Plane, [""])
sketch25.MapMode = "FlatFace"
sketch25.AttachmentOffset = App.Placement(V(0, 0, 5), App.Rotation())
add_polygon(sketch25, [(-25, 22), (-25, -22), (25, -22), (25, 22)])
sketch25.addConstraint([
    Sketcher.Constraint("Vertical", 0),
    Sketcher.Constraint("Horizontal", 1),
    Sketcher.Constraint("Vertical", 2),
    Sketcher.Constraint("Horizontal", 3),
    Sketcher.Constraint("Symmetric", 0, 2, 2, 2, -1, 1),
    Sketcher.Constraint("DistanceX", 1, 1, 1, 2, 50.0),
    Sketcher.Constraint("DistanceY", 0, 2, 0, 1, 43.0),
])
pocket15 = doc.addObject("PartDesign::Pocket", "Pocket014")
body.addObject(pocket15)
pocket15.Profile = sketch25
pocket15.Length = 100

sketch26 = doc.addObject("Sketcher::SketchObject", "Sketch025")
body.addObject(sketch26)
sketch26.AttachmentSupport = (doc.XY_Plane, [""])
sketch26.MapMode = "FlatFace"
sketch26.AttachmentOffset = App.Placement(V(0, 0, -13), App.Rotation())
add_polygon(sketch26, [(25, 58), (25, 15), (-25, 15), (-25, 58)])
sketch26.addGeometry(Part.Circle(V(0, 36, 0), V(0, 0, 1), 10), False)
sketch26.addConstraint([
    Sketcher.Constraint("Vertical", 0),
    Sketcher.Constraint("Horizontal", 1),
    Sketcher.Constraint("Vertical", 2),
    Sketcher.Constraint("Horizontal", 3),
    Sketcher.Constraint("PointOnObject", 4, 3, -2),
    Sketcher.Constraint("Diameter", 4, 20.0),
    Sketcher.Constraint("DistanceX", 1, 2, 1, 1, 50.0),
    Sketcher.Constraint("DistanceY", 0, 2, 0, 1, 43.0),
    Sketcher.Constraint("DistanceX", -1, 1, 0, 2, 25.0),
    Sketcher.Constraint("DistanceY", -1, 1, 0, 2, 15.0),
    Sketcher.Constraint("DistanceY", -1, 1, 4, 3, 36.5),
])
pad11 = doc.addObject("PartDesign::Pad", "Pad010")
body.addObject(pad11)
pad11.Profile = sketch26
pad11.Length = 5
pad11.Reversed = True

sketch27 = doc.addObject("Sketcher::SketchObject", "Sketch026")
body.addObject(sketch27)
sketch27.AttachmentSupport = (doc.XY_Plane, [""])
sketch27.MapMode = "FlatFace"
sketch27.AttachmentOffset = App.Placement(V(0, 0, -13), App.Rotation())
add_polygon(sketch27, [(-25, 58), (-25, 15), (25, 15), (25, 58)])
add_polygon(sketch27, [(20, 22), (-20, 22), (-20, 52), (20, 52)])
sketch27.addConstraint([
    Sketcher.Constraint("Vertical", 0),
    Sketcher.Constraint("Horizontal", 1),
    Sketcher.Constraint("Vertical", 2),
    Sketcher.Constraint("Horizontal", 3),
    Sketcher.Constraint("Horizontal", 4),
    Sketcher.Constraint("Vertical", 5),
    Sketcher.Constraint("Horizontal", 6),
    Sketcher.Constraint("Vertical", 7),
    Sketcher.Constraint("DistanceX", 1, 1, 1, 2, 50.0),
    Sketcher.Constraint("DistanceX", 4, 2, 4, 1, 40.0),
    Sketcher.Constraint("DistanceY", 0, 2, 0, 1, 43.0),
    Sketcher.Constraint("DistanceY", 5, 1, 5, 2, 30.0),
    Sketcher.Constraint("DistanceX", 0, 2, -1, 1, 25.0),
    Sketcher.Constraint("DistanceY", -1, 1, 0, 2, 15.0),
    Sketcher.Constraint("DistanceX", 4, 2, -1, 1, 20.0),
    Sketcher.Constraint("DistanceY", -1, 1, 4, 2, 21.5),
])
pad12 = doc.addObject("PartDesign::Pad", "Pad011")
body.addObject(pad12)
pad12.Profile = sketch27
pad12.Length = 5

sketch28 = doc.addObject("Sketcher::SketchObject", "Sketch027")
body.addObject(sketch28)
sketch28.AttachmentSupport = (doc.XY_Plane, [""])
sketch28.MapMode = "FlatFace"
sketch28.AttachmentOffset = App.Placement(V(0, 0, 82), App.Rotation())
sketch28.addGeometry([
    Part.Circle(V(18, 50.5, 0), V(0, 0, 1), 2.1),
    Part.Circle(V(-18, 50.5, 0), V(0, 0, 1), 2.1),
    Part.Circle(V(-18, 22.5, 0), V(0, 0, 1), 2.1),
    Part.Circle(V(18, 22.5, 0), V(0, 0, 1), 2.1),
    Part.Circle(V(0, 36.5, 0), V(0, 0, 1), 10),
], False)
sketch28.addConstraint([
    Sketcher.Constraint("Equal", 0, 1),
    Sketcher.Constraint("Equal", 1, 2),
    Sketcher.Constraint("Equal", 2, 3),
    Sketcher.Constraint("Symmetric", 0, 3, 1, 3, -2),
    Sketcher.Constraint("Symmetric", 2, 3, 3, 3, -2),
    Sketcher.Constraint("PointOnObject", 4, 3, -2),
    Sketcher.Constraint("Vertical", 1, 3, 2, 3),
    Sketcher.Constraint("Diameter", 4, 20.0),
    Sketcher.Constraint("Diameter", 0, 4.2),
    Sketcher.Constraint("DistanceX", -1, 1, 0, 3, 18.0),
    Sketcher.Constraint("DistanceY", 2, 3, 1, 3, 28.0),
    Sketcher.Constraint("DistanceY", 4, 3, 0, 3, 14.0),
    Sketcher.Constraint("DistanceY", -1, 1, 0, 3, 50.5),
])
pocket16 = doc.addObject("PartDesign::Pocket", "Pocket015")
body.addObject(pocket16)
pocket16.Profile = sketch28
pocket16.Length = 100

sketch29 = doc.addObject("Sketcher::SketchObject", "Sketch028")
body.addObject(sketch29)
sketch29.AttachmentSupport = (doc.XY_Plane, [""])
sketch29.MapMode = "FlatFace"
sketch29.AttachmentOffset = App.Placement(V(0, 0, 5), App.Rotation())
add_polygon(sketch29, [(-20, 26), (-20, 22), (-14, 22), (-14, 26)])
add_polygon(sketch29, [(14, 26), (14, 22), (20, 22), (20, 26)])
sketch29.addConstraint([
    Sketcher.Constraint("Vertical", 0),
    Sketcher.Constraint("Horizontal", 1),
    Sketcher.Constraint("Vertical", 2),
    Sketcher.Constraint("Horizontal", 3),
    Sketcher.Constraint("Vertical", 4),
    Sketcher.Constraint("Horizontal", 5),
    Sketcher.Constraint("Vertical", 6),
    Sketcher.Constraint("Horizontal", 7),
    Sketcher.Constraint("Symmetric", 1, 2, 4, 2, -2),
    Sketcher.Constraint("Symmetric", 3, 2, 6, 2, -2),
    Sketcher.Constraint("DistanceX", 1, 1, 1, 2, 6.0),
    Sketcher.Constraint("DistanceY", 0, 2, 0, 1, 5.0),
    Sketcher.Constraint("DistanceX", 0, 2, -1, 1, 20.0),
    Sketcher.Constraint("DistanceY", -1, 1, 0, 2, 21.5),
])
pocket17 = doc.addObject("PartDesign::Pocket", "Pocket016")
body.addObject(pocket17)
pocket17.Profile = sketch29
pocket17.Length = 13

sketch30 = doc.addObject("Sketcher::SketchObject", "Sketch029")
body.addObject(sketch30)
sketch30.AttachmentSupport = (doc.XY_Plane, [""])
sketch30.MapMode = "FlatFace"
sketch30.AttachmentOffset = App.Placement(V(0, 0, 19), App.Rotation())
sketch30.addGeometry([
    Part.Circle(V(-18, 50.5, 0), V(0, 0, 1), 4.1),
    Part.Circle(V(18, 50.5, 0), V(0, 0, 1), 4.1),
], False)
sketch30.addConstraint([
    Sketcher.Constraint("Equal", 0, 1),
    Sketcher.Constraint("Symmetric", 0, 3, 1, 3, -2),
    Sketcher.Constraint("Diameter", 0, 8.2),
    Sketcher.Constraint("DistanceX", 0, 3, -1, 1, 18.0),
    Sketcher.Constraint("DistanceY", -1, 1, 0, 3, 50.5),
])
pocket18 = doc.addObject("PartDesign::Pocket", "Pocket017")
body.addObject(pocket18)
pocket18.Profile = sketch30
pocket18.Length = 29

sketch31 = doc.addObject("Sketcher::SketchObject", "Sketch030")
body.addObject(sketch31)
sketch31.AttachmentSupport = (doc.XY_Plane, [""])
sketch31.MapMode = "FlatFace"
sketch31.AttachmentOffset = App.Placement(V(0, 0, 19), App.Rotation())
sketch31.addGeometry([
    Part.LineSegment(V(-25, 46.5, 0), V(-20, 46.5, 0)),
    Part.LineSegment(V(-20, 46.5, 0), V(-20, 46.92, 0)),
    Part.ArcOfCircle(Part.Circle(V(-18, 50.5, 0), V(0, 0, 1), 4.1), math.radians(119), math.radians(241)),
    Part.LineSegment(V(-20, 54.08, 0), V(-20, 58, 0)),
    Part.LineSegment(V(-20, 58, 0), V(-25, 58, 0)),
    Part.LineSegment(V(-25, 58, 0), V(-25, 46.5, 0)),
], False)
sketch31.addConstraint([
    Sketcher.Constraint("Coincident", 0, 2, 1, 1),
    Sketcher.Constraint("Coincident", 1, 2, 2, 2),
    Sketcher.Constraint("Coincident", 2, 1, 3, 1),
    Sketcher.Constraint("Coincident", 3, 2, 4, 1),
    Sketcher.Constraint("Coincident", 4, 2, 5, 1),
    Sketcher.Constraint("Coincident", 5, 2, 0, 1),
    Sketcher.Constraint("Horizontal", 0),
    Sketcher.Constraint("Vertical", 1),
    Sketcher.Constraint("Vertical", 3),
    Sketcher.Constraint("Horizontal", 4),
    Sketcher.Constraint("Vertical", 5),
    Sketcher.Constraint("Vertical", 1, 2, 2, 1),
    Sketcher.Constraint("Radius", 2, 4.1),
    Sketcher.Constraint("DistanceX", 0, 1, 0, 2, 5.0),
    Sketcher.Constraint("DistanceY", 5, 2, 5, 1, 11.5),
    Sketcher.Constraint("DistanceX", 2, 3, -1, 1, 18.0),
    Sketcher.Constraint("DistanceX", 0, 2, -1, 1, 20.0),
    Sketcher.Constraint("DistanceY", -1, 1, 3, 2, 58.0),
    Sketcher.Constraint("DistanceY", 0, 2, 2, 3, 4.0),
])
pad13 = doc.addObject("PartDesign::Pad", "Pad012")
body.addObject(pad13)
pad13.Profile = sketch31
pad13.Length = 27
pad13.Reversed = True

sketch32 = doc.addObject("Sketcher::SketchObject", "Sketch031")
body.addObject(sketch32)
sketch32.AttachmentSupport = (doc.XY_Plane, [""])
sketch32.MapMode = "FlatFace"
sketch32.AttachmentOffset = App.Placement(V(0, 0, 19), App.Rotation())
sketch32.addGeometry([
    Part.LineSegment(V(18.9, 46.5, 0), V(25, 46.5, 0)),
    Part.LineSegment(V(25, 46.5, 0), V(25, 58, 0)),
    Part.LineSegment(V(25, 58, 0), V(20, 58, 0)),
    Part.LineSegment(V(20, 58, 0), V(20, 54.1, 0)),
    Part.ArcOfCircle(Part.Circle(V(18, 50.5, 0), V(0, 0, 1), 4.1), math.radians(-77), math.radians(61)),
], False)
sketch32.addConstraint([
    Sketcher.Constraint("Coincident", 0, 2, 1, 1),
    Sketcher.Constraint("Coincident", 1, 2, 2, 1),
    Sketcher.Constraint("Coincident", 2, 2, 3, 1),
    Sketcher.Constraint("Coincident", 3, 2, 4, 2),
    Sketcher.Constraint("Coincident", 4, 1, 0, 1),
    Sketcher.Constraint("Horizontal", 0),
    Sketcher.Constraint("Vertical", 1),
    Sketcher.Constraint("Horizontal", 2),
    Sketcher.Constraint("Vertical", 3),
    Sketcher.Constraint("Radius", 4, 4.1),
    Sketcher.Constraint("DistanceX", 2, 2, 2, 1, 5.0),
    Sketcher.Constraint("DistanceX", 0, 1, 0, 2, 6.1),
    Sketcher.Constraint("DistanceY", 1, 1, 1, 2, 11.5),
    Sketcher.Constraint("DistanceX", -1, 1, 4, 3, 18.0),
    Sketcher.Constraint("DistanceX", -1, 1, 0, 2, 25.0),
    Sketcher.Constraint("DistanceY", -1, 1, 1, 2, 58.0),
])
pad14 = doc.addObject("PartDesign::Pad", "Pad013")
body.addObject(pad14)
pad14.Profile = sketch32
pad14.Length = 27
pad14.Reversed = True

sketch33 = doc.addObject("Sketcher::SketchObject", "Sketch032")
body.addObject(sketch33)
sketch33.AttachmentSupport = (doc.XY_Plane, [""])
sketch33.MapMode = "FlatFace"
sketch33.AttachmentOffset = App.Placement(V(0, 0, 5), App.Rotation())
add_polygon(sketch33, [(-14, 26.75), (-14, 26.5), (14, 26.5), (14, 26.75)])
sketch33.addConstraint([
    Sketcher.Constraint("Vertical", 0),
    Sketcher.Constraint("Horizontal", 1),
    Sketcher.Constraint("Vertical", 2),
    Sketcher.Constraint("Horizontal", 3),
    Sketcher.Constraint("DistanceX", 1, 1, 1, 2, 28.0),
    Sketcher.Constraint("DistanceX", 0, 2, -1, 1, 14.0),
    Sketcher.Constraint("DistanceY", 0, 2, 0, 1, 0.25),
    Sketcher.Constraint("DistanceY", -1, 1, 0, 2, 26.5),
])
pad15 = doc.addObject("PartDesign::Pad", "Pad014")
body.addObject(pad15)
pad15.Profile = sketch33
pad15.Length = 20
pad15.Reversed = True

sketch34 = doc.addObject("Sketcher::SketchObject", "Sketch033")
body.addObject(sketch34)
sketch34.AttachmentSupport = (doc.XY_Plane, [""])
sketch34.MapMode = "FlatFace"
sketch34.AttachmentOffset = App.Placement(V(0, 0, -8), App.Rotation())
sketch34.addGeometry([
    Part.Circle(V(-18, 22.5, 0), V(0, 0, 1), 4),
    Part.Circle(V(18, 22.5, 0), V(0, 0, 1), 4),
], False)
sketch34.addConstraint([
    Sketcher.Constraint("Equal", 0, 1),
    Sketcher.Constraint("Symmetric", 0, 3, 1, 3, -2),
    Sketcher.Constraint("Diameter", 0, 8.0),
    Sketcher.Constraint("DistanceX", 0, 3, -1, 1, 18.0),
    Sketcher.Constraint("DistanceY", -1, 1, 0, 3, 22.5),
])
pocket19 = doc.addObject("PartDesign::Pocket", "Pocket018")
body.addObject(pocket19)
pocket19.Profile = sketch34
pocket19.Length = 2

sketch35 = doc.addObject("Sketcher::SketchObject", "Sketch034")
body.addObject(sketch35)
sketch35.AttachmentSupport = (doc.XY_Plane, [""])
sketch35.MapMode = "FlatFace"
sketch35.AttachmentOffset = App.Placement(V(0, 0, -8), App.Rotation())
sketch35.addGeometry([
    Part.LineSegment(V(-25, 46, 0), V(-25, 26, 0)),
    Part.ArcOfCircle(Part.Circle(V(-32, 36, 0), V(0, 0, 1), 12), math.radians(-53), math.radians(53)),
], False)
sketch35.addConstraint([
    Sketcher.Constraint("Coincident", 0, 1, 1, 2),
    Sketcher.Constraint("Coincident", 1, 1, 0, 2),
    Sketcher.Constraint("Vertical", 0),
    Sketcher.Constraint("Radius", 1, 12.499999),
    Sketcher.Constraint("DistanceY", 0, 2, 0, 1, 20.0),
    Sketcher.Constraint("DistanceX", 0, 1, -1, 1, 25.0),
    Sketcher.Constraint("DistanceY", -1, 1, 1, 3, 36.5),
])
pocket20 = doc.addObject("PartDesign::Pocket", "Pocket019")
body.addObject(pocket20)
pocket20.Profile = sketch35
pocket20.Length = 10

sketch36 = doc.addObject("Sketcher::SketchObject", "Sketch035")
body.addObject(sketch36)
sketch36.AttachmentSupport = (doc.XY_Plane, [""])
sketch36.MapMode = "FlatFace"
sketch36.AttachmentOffset = App.Placement(V(0, 0, -8), App.Rotation())
sketch36.addGeometry([
    Part.LineSegment(V(25, 26, 0), V(25, 46, 0)),
    Part.ArcOfCircle(Part.Circle(V(32, 36, 0), V(0, 0, 1), 12), math.radians(127), math.radians(233)),
], False)
sketch36.addConstraint([
    Sketcher.Constraint("Coincident", 0, 1, 1, 2),
    Sketcher.Constraint("Coincident", 1, 1, 0, 2),
    Sketcher.Constraint("Vertical", 0),
    Sketcher.Constraint("Radius", 1, 12.5),
    Sketcher.Constraint("DistanceY", 0, 1, 0, 2, 20.0),
    Sketcher.Constraint("DistanceX", -1, 1, 0, 1, 25.0),
    Sketcher.Constraint("DistanceY", -1, 1, 1, 3, 36.5),
])
pocket21 = doc.addObject("PartDesign::Pocket", "Pocket020")
body.addObject(pocket21)
pocket21.Profile = sketch36
pocket21.Length = 10

sketch37 = doc.addObject("Sketcher::SketchObject", "Sketch036")
body.addObject(sketch37)
sketch37.AttachmentSupport = (doc.YZ_Plane, [""])
sketch37.MapMode = "FlatFace"
sketch37.AttachmentOffset = App.Placement(V(0, 0, -28), App.Rotation())
add_polygon(sketch37, [(58, -8), (16, -8), (16, 19), (58, 19)])
sketch37.addConstraint([
    Sketcher.Constraint("Horizontal", 0),
    Sketcher.Constraint("Vertical", 1),
    Sketcher.Constraint("Horizontal", 2),
    Sketcher.Constraint("Vertical", 3),
    Sketcher.Constraint("DistanceY", 1, 1, 1, 2, 27.0),
    Sketcher.Constraint("DistanceY", 0, 2, -1, 1, 8.0),
    Sketcher.Constraint("DistanceX", -1, 1, 2, 2, 58.0),
    Sketcher.Constraint("DistanceX", 0, 2, 0, 1, 42.100732),
])
pocket22 = doc.addObject("PartDesign::Pocket", "Pocket021")
body.addObject(pocket22)
pocket22.Profile = sketch37
pocket22.Length = 60
pocket22.Reversed = True

sketch38 = doc.addObject("Sketcher::SketchObject", "Sketch037")
body.addObject(sketch38)
sketch38.AttachmentSupport = (doc.XY_Plane, [""])
sketch38.MapMode = "FlatFace"
sketch38.AttachmentOffset = App.Placement(V(0, 0, -8), App.Rotation())
sketch38.addGeometry(Part.Circle(V(0, 36, 0), V(0, 0, 1), 10), False)
add_polygon(sketch38, [(-25, 46), (-25, 26), (-20, 26), (-20, 46)])
add_polygon(sketch38, [(20, 46), (20, 26), (25, 26), (25, 46)])
sketch38.addConstraint([
    Sketcher.Constraint("Vertical", 1),
    Sketcher.Constraint("Horizontal", 2),
    Sketcher.Constraint("Vertical", 3),
    Sketcher.Constraint("Horizontal", 4),
    Sketcher.Constraint("Vertical", 5),
    Sketcher.Constraint("Horizontal", 6),
    Sketcher.Constraint("Vertical", 7),
    Sketcher.Constraint("Horizontal", 8),
    Sketcher.Constraint("Symmetric", 1, 2, 6, 2, -2),
    Sketcher.Constraint("PointOnObject", 0, 3, -2),
    Sketcher.Constraint("Horizontal", 4, 2, 7, 2),
    Sketcher.Constraint("Diameter", 0, 20.0),
    Sketcher.Constraint("DistanceY", 1, 2, 1, 1, 20.0),
    Sketcher.Constraint("DistanceX", 1, 2, -1, 1, 25.0),
    Sketcher.Constraint("DistanceY", 1, 2, 0, 3, 10.0),
    Sketcher.Constraint("DistanceY", -1, 1, 0, 3, 36.5),
    Sketcher.Constraint("DistanceX", 2, 1, 2, 2, 5.257466),
    Sketcher.Constraint("DistanceX", 6, 1, 6, 2, 5.257305),
])
pad16 = doc.addObject("PartDesign::Pad", "Pad015")
body.addObject(pad16)
pad16.Profile = sketch38
pad16.Length = 10
pad16.Reversed = True

sketch39 = doc.addObject("Sketcher::SketchObject", "Sketch038")
body.addObject(sketch39)
sketch39.AttachmentSupport = (doc.YZ_Plane, [""])
sketch39.MapMode = "FlatFace"
sketch39.AttachmentOffset = App.Placement(V(0, 0, -25), App.Rotation())
add_polygon(sketch39, [(58, -18), (15, -18), (15, -13), (58, -13)])
sketch39.addConstraint([
    Sketcher.Constraint("Horizontal", 0),
    Sketcher.Constraint("Vertical", 1),
    Sketcher.Constraint("Horizontal", 2),
    Sketcher.Constraint("Vertical", 3),
    Sketcher.Constraint("DistanceX", 0, 2, 0, 1, 43.0),
    Sketcher.Constraint("DistanceY", 1, 1, 1, 2, 5.0),
    Sketcher.Constraint("DistanceX", -1, 1, 0, 2, 15.0),
    Sketcher.Constraint("DistanceY", 0, 2, -1, 1, 18.0),
])
pocket23 = doc.addObject("PartDesign::Pocket", "Pocket022")
body.addObject(pocket23)
pocket23.Profile = sketch39
pocket23.Length = 50
pocket23.Reversed = True

sketch40 = doc.addObject("Sketcher::SketchObject", "Sketch039")
body.addObject(sketch40)
sketch40.AttachmentSupport = (doc.XY_Plane, [""])
sketch40.MapMode = "FlatFace"
sketch40.AttachmentOffset = App.Placement(V(0, 0, -8), App.Rotation())
add_polygon(sketch40, [(-10, 26), (-10, 18), (10, 18), (10, 26)])
sketch40.addConstraint([
    Sketcher.Constraint("Vertical", 0),
    Sketcher.Constraint("Horizontal", 1),
    Sketcher.Constraint("Vertical", 2),
    Sketcher.Constraint("Horizontal", 3),
    Sketcher.Constraint("DistanceX", 1, 1, 1, 2, 20.0),
    Sketcher.Constraint("DistanceY", 0, 2, 0, 1, 8.0),
    Sketcher.Constraint("DistanceX", 0, 2, -1, 1, 10.0),
    Sketcher.Constraint("DistanceY", -1, 1, 0, 2, 18.5),
])
pad17 = doc.addObject("PartDesign::Pad", "Pad016")
body.addObject(pad17)
pad17.Profile = sketch40
pad17.Length = 20

sketch41 = doc.addObject("Sketcher::SketchObject", "Sketch040")
body.addObject(sketch41)
sketch41.AttachmentSupport = (doc.XZ_Plane, [""])
sketch41.MapMode = "FlatFace"
sketch41.AttachmentOffset = App.Placement(V(0, 0, -26.5), App.Rotation())
sketch41.addGeometry([
    Part.Circle(V(0, 2, 0), V(0, 0, 1), 6),
    Part.ArcOfCircle(Part.Circle(V(0, 2, 0), V(0, 0, 1), 10), math.radians(90), math.radians(180)),
    Part.LineSegment(V(-10, 2, 0), V(-10, 12, 0)),
    Part.LineSegment(V(-10, 12, 0), V(0, 12, 0)),
    Part.ArcOfCircle(Part.Circle(V(0, 2, 0), V(0, 0, 1), 10), math.radians(0), math.radians(90)),
    Part.LineSegment(V(0, 12, 0), V(10, 12, 0)),
    Part.LineSegment(V(10, 12, 0), V(10, 2, 0)),
], False)
sketch41.addConstraint([
    Sketcher.Constraint("Tangent", 1, 2, 2, 1),
    Sketcher.Constraint("Coincident", 2, 2, 3, 1),
    Sketcher.Constraint("Tangent", 3, 2, 1, 1),
    Sketcher.Constraint("Tangent", 4, 2, 5, 1),
    Sketcher.Constraint("Coincident", 5, 2, 6, 1),
    Sketcher.Constraint("Tangent", 6, 2, 4, 1),
    Sketcher.Constraint("Vertical", 2),
    Sketcher.Constraint("Horizontal", 3),
    Sketcher.Constraint("Horizontal", 5),
    Sketcher.Constraint("Vertical", 6),
    Sketcher.Constraint("Coincident", 1, 3, 0, 3),
    Sketcher.Constraint("Coincident", 4, 3, 0, 3),
    Sketcher.Constraint("Equal", 1, 4),
    Sketcher.Constraint("PointOnObject", 0, 3, -2),
    Sketcher.Constraint("Radius", 1, 10.0),
    Sketcher.Constraint("Diameter", 0, 12.1),
    Sketcher.Constraint("DistanceY", -1, 1, 0, 3, 2.0),
])
pocket24 = doc.addObject("PartDesign::Pocket", "Pocket023")
body.addObject(pocket24)
pocket24.Profile = sketch41
pocket24.Length = 20
pocket24.Reversed = True

doc.recompute()
